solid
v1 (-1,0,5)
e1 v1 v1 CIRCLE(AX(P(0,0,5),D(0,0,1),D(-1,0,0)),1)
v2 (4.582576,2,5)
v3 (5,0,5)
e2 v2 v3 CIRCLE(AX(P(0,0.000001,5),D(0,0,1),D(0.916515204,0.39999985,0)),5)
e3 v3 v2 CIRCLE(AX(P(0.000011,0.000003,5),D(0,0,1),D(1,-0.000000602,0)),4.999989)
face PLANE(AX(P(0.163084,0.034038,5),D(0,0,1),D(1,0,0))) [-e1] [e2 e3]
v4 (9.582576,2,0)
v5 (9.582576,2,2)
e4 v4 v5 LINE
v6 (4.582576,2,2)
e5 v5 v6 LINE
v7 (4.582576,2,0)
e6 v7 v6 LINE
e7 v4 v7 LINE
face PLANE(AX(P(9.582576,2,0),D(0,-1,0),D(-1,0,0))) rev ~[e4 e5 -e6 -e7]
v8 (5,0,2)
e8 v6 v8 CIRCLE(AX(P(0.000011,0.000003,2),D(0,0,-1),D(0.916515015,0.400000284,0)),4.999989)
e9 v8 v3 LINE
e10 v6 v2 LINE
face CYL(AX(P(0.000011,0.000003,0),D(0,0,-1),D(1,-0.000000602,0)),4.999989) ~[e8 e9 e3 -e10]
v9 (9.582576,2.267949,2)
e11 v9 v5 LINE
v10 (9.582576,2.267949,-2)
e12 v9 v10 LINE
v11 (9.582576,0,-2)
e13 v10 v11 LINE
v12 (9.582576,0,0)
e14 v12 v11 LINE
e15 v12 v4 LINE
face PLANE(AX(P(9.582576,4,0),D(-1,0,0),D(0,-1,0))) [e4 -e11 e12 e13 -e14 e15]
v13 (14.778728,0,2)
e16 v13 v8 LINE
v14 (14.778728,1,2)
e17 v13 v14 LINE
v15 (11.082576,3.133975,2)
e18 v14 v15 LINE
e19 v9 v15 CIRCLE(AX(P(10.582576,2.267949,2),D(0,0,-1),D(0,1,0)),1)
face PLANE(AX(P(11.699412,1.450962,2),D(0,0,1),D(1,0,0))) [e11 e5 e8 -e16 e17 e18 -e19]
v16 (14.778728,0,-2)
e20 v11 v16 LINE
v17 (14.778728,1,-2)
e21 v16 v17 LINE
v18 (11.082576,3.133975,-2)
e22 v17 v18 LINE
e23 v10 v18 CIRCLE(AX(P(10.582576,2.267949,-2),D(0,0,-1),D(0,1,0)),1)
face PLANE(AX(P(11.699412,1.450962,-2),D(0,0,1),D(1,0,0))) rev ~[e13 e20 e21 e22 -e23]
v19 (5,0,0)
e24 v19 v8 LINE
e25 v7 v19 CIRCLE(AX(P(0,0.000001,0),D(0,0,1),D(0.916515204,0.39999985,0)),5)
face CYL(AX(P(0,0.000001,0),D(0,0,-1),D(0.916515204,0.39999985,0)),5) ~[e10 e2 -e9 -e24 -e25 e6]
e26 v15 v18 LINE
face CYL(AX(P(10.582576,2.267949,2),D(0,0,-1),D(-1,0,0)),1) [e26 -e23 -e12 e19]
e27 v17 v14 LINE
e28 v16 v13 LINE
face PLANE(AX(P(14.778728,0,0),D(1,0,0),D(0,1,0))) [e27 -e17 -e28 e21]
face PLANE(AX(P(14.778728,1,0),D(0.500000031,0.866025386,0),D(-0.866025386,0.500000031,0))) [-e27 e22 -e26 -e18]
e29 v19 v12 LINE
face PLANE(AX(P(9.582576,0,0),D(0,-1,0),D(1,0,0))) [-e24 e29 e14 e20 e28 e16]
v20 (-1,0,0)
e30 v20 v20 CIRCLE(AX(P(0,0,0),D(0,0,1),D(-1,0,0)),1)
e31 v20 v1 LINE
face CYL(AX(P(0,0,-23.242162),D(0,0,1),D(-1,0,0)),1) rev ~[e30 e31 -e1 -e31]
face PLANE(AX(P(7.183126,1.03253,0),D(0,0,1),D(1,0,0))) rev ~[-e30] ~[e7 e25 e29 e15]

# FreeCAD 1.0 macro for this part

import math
import FreeCAD as App
import Part
import Sketcher
Q = App.Units.Quantity


def edges_at(feature, points):
    """Names of the edges that pass closest to the given points."""
    edges = feature.Shape.Edges
    near = lambda p: min(range(len(edges)), key=lambda i: edges[i].distToShape(Part.Vertex(*p))[0])
    return sorted({f"Edge{near(p) + 1}" for p in points})


def add_polygon(sketch, points):
    """Adds a closed chain of lines whose ends are joined by coincident constraints."""
    first, n = sketch.GeometryCount, len(points)
    for a, b in zip(points, points[1:] + points[:1]):
        sketch.addGeometry(Part.LineSegment(App.Vector(*a, 0), App.Vector(*b, 0)), False)
    for i in range(n):
        sketch.addConstraint(Sketcher.Constraint("Coincident", first + i, 2, first + (i + 1) % n, 1))

doc = App.newDocument("Part")
body = doc.addObject("PartDesign::Body", "Body")

# Sketch on XY plane
sketch1 = body.newObject("Sketcher::SketchObject", "Sketch")
sketch1.AttachmentSupport = (doc.getObject("XY_Plane"), [""])
sketch1.MapMode = "FlatFace"
sketch1.addGeometry([
    Part.ArcOfCircle(Part.Circle(App.Vector(0, 0, 0), App.Vector(0, 0, 1), 5), math.radians(24), math.radians(360)),
    Part.ArcOfCircle(Part.Circle(App.Vector(0, 0, 0), App.Vector(0, 0, 1), 5), math.radians(0), math.radians(24)),
], False)
sketch1.addConstraint([
    Sketcher.Constraint("Tangent", 0, 1, 1, 2),
    Sketcher.Constraint("Coincident", 1, 1, 0, 2),
    Sketcher.Constraint("Coincident", 0, 3, -1, 1),
    Sketcher.Constraint("PointOnObject", 1, 1, -1),
    Sketcher.Constraint("Radius", 0, 5.0),
    Sketcher.Constraint("DistanceY", -1, 1, 0, 1, 2.0),
])
pad1 = body.newObject("PartDesign::Pad", "Pad")
pad1.Profile = sketch1
pad1.Length = 5

# Sketch on XY plane
sketch2 = body.newObject("Sketcher::SketchObject", "Sketch001")
sketch2.AttachmentSupport = (doc.getObject("XY_Plane"), [""])
sketch2.MapMode = "FlatFace"
sketch2.addGeometry([
    Part.ArcOfCircle(Part.Circle(App.Vector(0, 0, 0), App.Vector(0, 0, 1), 5), math.radians(0), math.radians(24)),
    Part.LineSegment(App.Vector(5, 0, 0), App.Vector(9.6, 0, 0)),
    Part.LineSegment(App.Vector(9.6, 0, 0), App.Vector(9.6, 2, 0)),
    Part.LineSegment(App.Vector(9.6, 2, 0), App.Vector(4.6, 2, 0)),
], False)
sketch2.addConstraint([
    Sketcher.Constraint("Coincident", 0, 1, 1, 1),
    Sketcher.Constraint("Coincident", 1, 2, 2, 1),
    Sketcher.Constraint("Coincident", 2, 2, 3, 1),
    Sketcher.Constraint("Coincident", 3, 2, 0, 2),
    Sketcher.Constraint("Horizontal", 1),
    Sketcher.Constraint("Vertical", 2),
    Sketcher.Constraint("Horizontal", 3),
    Sketcher.Constraint("PointOnObject", 0, 1, -1),
    Sketcher.Constraint("DistanceX", 3, 2, 3, 1, 5.0),
    Sketcher.Constraint("DistanceY", 2, 1, 2, 2, 2.0),
    Sketcher.Constraint("DistanceX", -1, 1, 0, 1, 5.0),
    Sketcher.Constraint("Radius", 0, 4.999989),
    Sketcher.Constraint("DistanceX", 1, 1, 1, 2, 4.582576),
])
pad2 = body.newObject("PartDesign::Pad", "Pad001")
pad2.Profile = sketch2
pad2.Length = 2

# Sketch on XY plane
sketch3 = body.newObject("Sketcher::SketchObject", "Sketch002")
sketch3.AttachmentSupport = (doc.getObject("XY_Plane"), [""])
sketch3.MapMode = "FlatFace"
add_polygon(sketch3, [(9.6, 0), (14.8, 0), (14.8, 1), (9.6, 4)])  # lines 0-3
sketch3.addConstraint([
    Sketcher.Constraint("Horizontal", 0),
    Sketcher.Constraint("Vertical", 1),
    Sketcher.Constraint("Vertical", 3),
    Sketcher.Constraint("PointOnObject", 0, 2, -1),
    Sketcher.Constraint("DistanceY", 1, 1, 1, 2, 1.0),
    Sketcher.Constraint("DistanceY", 3, 2, 3, 1, 4.0),
    Sketcher.Constraint("Angle", 2, Q("149.999998 deg")),
    Sketcher.Constraint("DistanceX", -1, 1, 0, 2, 14.778728),
])
pad3 = body.newObject("PartDesign::Pad", "Pad002")
pad3.Profile = sketch3
pad3.Length = 4
pad3.Midplane = True

# Sketch on XY plane
sketch4 = body.newObject("Sketcher::SketchObject", "Sketch003")
sketch4.AttachmentSupport = (doc.getObject("XY_Plane"), [""])
sketch4.MapMode = "FlatFace"
sketch4.addGeometry(Part.Circle(App.Vector(0, 0, 0), App.Vector(0, 0, 1), 1), False)
sketch4.addConstraint([
    Sketcher.Constraint("Coincident", 0, 3, -1, 1),
    Sketcher.Constraint("Diameter", 0, 2.0),
])
doc.recompute()
hole = body.newObject("PartDesign::Hole", "Hole")
hole.Profile = sketch4
hole.ThreadType = "None"
hole.Diameter = 2
hole.DepthType = "ThroughAll"
hole.Reversed = True
doc.recompute()

fillet = body.newObject("PartDesign::Fillet", "Fillet")
fillet.Base = (hole, edges_at(hole, [(9.583, 4, 0)]))
fillet.Radius = 1

doc.recompute()
